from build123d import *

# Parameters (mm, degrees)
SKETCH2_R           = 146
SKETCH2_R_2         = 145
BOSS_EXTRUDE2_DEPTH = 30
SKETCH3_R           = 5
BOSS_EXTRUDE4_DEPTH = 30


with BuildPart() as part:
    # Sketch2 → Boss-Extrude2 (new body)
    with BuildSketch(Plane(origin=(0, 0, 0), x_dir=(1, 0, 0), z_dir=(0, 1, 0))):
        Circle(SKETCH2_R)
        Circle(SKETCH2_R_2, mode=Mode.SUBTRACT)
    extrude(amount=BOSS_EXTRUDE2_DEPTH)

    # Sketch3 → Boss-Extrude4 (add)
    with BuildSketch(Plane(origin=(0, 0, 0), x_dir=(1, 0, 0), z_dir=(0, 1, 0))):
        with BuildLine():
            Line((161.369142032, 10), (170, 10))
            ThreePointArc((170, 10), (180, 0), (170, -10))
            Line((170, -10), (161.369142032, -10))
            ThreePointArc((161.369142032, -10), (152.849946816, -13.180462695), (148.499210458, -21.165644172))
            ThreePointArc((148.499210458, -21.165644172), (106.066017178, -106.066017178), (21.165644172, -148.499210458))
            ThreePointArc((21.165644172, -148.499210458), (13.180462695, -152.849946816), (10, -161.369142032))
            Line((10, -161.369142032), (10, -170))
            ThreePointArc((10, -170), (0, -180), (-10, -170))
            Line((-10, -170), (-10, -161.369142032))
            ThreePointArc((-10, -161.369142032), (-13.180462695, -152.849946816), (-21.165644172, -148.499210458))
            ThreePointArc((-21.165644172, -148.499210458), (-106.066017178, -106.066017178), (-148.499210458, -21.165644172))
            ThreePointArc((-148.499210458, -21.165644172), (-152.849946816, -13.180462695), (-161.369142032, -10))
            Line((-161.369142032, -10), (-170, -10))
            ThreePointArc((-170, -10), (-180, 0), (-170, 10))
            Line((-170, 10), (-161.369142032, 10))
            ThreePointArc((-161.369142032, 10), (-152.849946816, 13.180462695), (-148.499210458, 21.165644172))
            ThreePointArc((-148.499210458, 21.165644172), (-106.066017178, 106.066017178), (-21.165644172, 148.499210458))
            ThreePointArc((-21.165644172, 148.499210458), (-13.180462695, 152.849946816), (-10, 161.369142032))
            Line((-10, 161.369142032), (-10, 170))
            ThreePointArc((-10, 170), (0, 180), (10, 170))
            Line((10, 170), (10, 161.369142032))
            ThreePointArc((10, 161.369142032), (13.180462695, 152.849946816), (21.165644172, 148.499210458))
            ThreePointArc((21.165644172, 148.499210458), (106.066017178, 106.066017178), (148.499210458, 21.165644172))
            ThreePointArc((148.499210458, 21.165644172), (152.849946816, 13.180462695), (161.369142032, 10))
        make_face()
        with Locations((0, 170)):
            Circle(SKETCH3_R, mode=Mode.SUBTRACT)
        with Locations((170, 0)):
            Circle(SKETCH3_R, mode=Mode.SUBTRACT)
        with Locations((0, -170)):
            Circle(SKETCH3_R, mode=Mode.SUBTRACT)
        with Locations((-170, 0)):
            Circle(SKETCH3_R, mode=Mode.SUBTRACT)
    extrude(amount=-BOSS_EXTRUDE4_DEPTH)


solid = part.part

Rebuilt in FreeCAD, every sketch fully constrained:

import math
import FreeCAD as App
import Part
import Sketcher

doc = App.newDocument("Part")
params = doc.addObject("Spreadsheet::Sheet", "Params")
for row, (alias, value) in enumerate([
    ("sketch1_diameter", "292 mm"),
    ("sketch1_diameter2", "290 mm"),
    ("pad1_length", "30 mm"),
    ("sketch2_diameter", "10 mm"),
    ("sketch2_radius", "13 mm"),
    ("sketch2_radius2", "150 mm"),
    ("sketch2_radius3", "10 mm"),
    ("pad2_length", "30 mm"),
], start=1):
    params.set(f"A{row}", alias)
    params.set(f"B{row}", "=" + value)
    params.setAlias(f"B{row}", alias)

body = doc.addObject("PartDesign::Body", "Body")

sketch1 = body.newObject("Sketcher::SketchObject", "Sketch")
sketch1.AttachmentSupport = (doc.getObject("XZ_Plane"), [""])
sketch1.MapMode = "FlatFace"
sketch1.addGeometry([
    Part.Circle(App.Vector(0, 0, 0), App.Vector(0, 0, 1), 146),
    Part.Circle(App.Vector(0, 0, 0), App.Vector(0, 0, 1), 145),
], False)
sketch1.addConstraint([
    Sketcher.Constraint("Coincident", 0, 3, -1, 1),
    Sketcher.Constraint("Coincident", 1, 3, -1, 1),
    Sketcher.Constraint("Diameter", 0, 292.0),
    Sketcher.Constraint("Diameter", 1, 290.0),
])
sketch1.setExpression("Constraints[2]", "Params.sketch1_diameter")
sketch1.setExpression("Constraints[3]", "Params.sketch1_diameter2")
pad1 = body.newObject("PartDesign::Pad", "Pad")
pad1.Profile = sketch1
pad1.setExpression("Length", "Params.pad1_length")
pad1.Reversed = True

sketch2 = body.newObject("Sketcher::SketchObject", "Sketch001")
sketch2.AttachmentSupport = (doc.getObject("XZ_Plane"), [""])
sketch2.MapMode = "FlatFace"
sketch2.addGeometry([
    Part.LineSegment(App.Vector(170, -10, 0), App.Vector(161, -10, 0)),
    Part.ArcOfCircle(Part.Circle(App.Vector(161, -23, 0), App.Vector(0, 0, 1), 13), math.radians(90), math.radians(172)),
    Part.ArcOfCircle(Part.Circle(App.Vector(0, 0, 0), App.Vector(0, 0, 1), 150), math.radians(-82), math.radians(-8)),
    Part.ArcOfCircle(Part.Circle(App.Vector(23, -161, 0), App.Vector(0, 0, 1), 13), math.radians(98), math.radians(180)),
    Part.LineSegment(App.Vector(10, -161, 0), App.Vector(10, -170, 0)),
    Part.ArcOfCircle(Part.Circle(App.Vector(0, -170, 0), App.Vector(0, 0, 1), 10), math.radians(180), math.radians(360)),
    Part.LineSegment(App.Vector(-10, -170, 0), App.Vector(-10, -161, 0)),
    Part.ArcOfCircle(Part.Circle(App.Vector(-23, -161, 0), App.Vector(0, 0, 1), 13), math.radians(0), math.radians(82)),
    Part.ArcOfCircle(Part.Circle(App.Vector(0, 0, 0), App.Vector(0, 0, 1), 150), math.radians(-172), math.radians(-98)),
    Part.ArcOfCircle(Part.Circle(App.Vector(-161, -23, 0), App.Vector(0, 0, 1), 13), math.radians(8), math.radians(90)),
    Part.LineSegment(App.Vector(-161, -10, 0), App.Vector(-170, -10, 0)),
    Part.ArcOfCircle(Part.Circle(App.Vector(-170, 0, 0), App.Vector(0, 0, 1), 10), math.radians(90), math.radians(270)),
    Part.LineSegment(App.Vector(-170, 10, 0), App.Vector(-161, 10, 0)),
    Part.ArcOfCircle(Part.Circle(App.Vector(-161, 23, 0), App.Vector(0, 0, 1), 13), math.radians(-90), math.radians(-8)),
    Part.ArcOfCircle(Part.Circle(App.Vector(0, 0, 0), App.Vector(0, 0, 1), 150), math.radians(98), math.radians(172)),
    Part.ArcOfCircle(Part.Circle(App.Vector(-23, 161, 0), App.Vector(0, 0, 1), 13), math.radians(-82), math.radians(0)),
    Part.LineSegment(App.Vector(-10, 161, 0), App.Vector(-10, 170, 0)),
    Part.ArcOfCircle(Part.Circle(App.Vector(0, 170, 0), App.Vector(0, 0, 1), 10), math.radians(0), math.radians(180)),
    Part.LineSegment(App.Vector(10, 170, 0), App.Vector(10, 161, 0)),
    Part.ArcOfCircle(Part.Circle(App.Vector(23, 161, 0), App.Vector(0, 0, 1), 13), math.radians(180), math.radians(262)),
    Part.ArcOfCircle(Part.Circle(App.Vector(0, 0, 0), App.Vector(0, 0, 1), 150), math.radians(8), math.radians(82)),
    Part.ArcOfCircle(Part.Circle(App.Vector(161, 23, 0), App.Vector(0, 0, 1), 13), math.radians(-172), math.radians(-90)),
    Part.LineSegment(App.Vector(161, 10, 0), App.Vector(170, 10, 0)),
    Part.ArcOfCircle(Part.Circle(App.Vector(170, 0, 0), App.Vector(0, 0, 1), 10), math.radians(-90), math.radians(90)),
    Part.Circle(App.Vector(0, 170, 0), App.Vector(0, 0, 1), 5),
    Part.Circle(App.Vector(170, 0, 0), App.Vector(0, 0, 1), 5),
    Part.Circle(App.Vector(-170, 0, 0), App.Vector(0, 0, 1), 5),
    Part.Circle(App.Vector(0, -170, 0), App.Vector(0, 0, 1), 5),
], False)
sketch2.addConstraint([
    Sketcher.Constraint("Tangent", 0, 2, 1, 1),
    Sketcher.Constraint("Tangent", 1, 2, 2, 2),
    Sketcher.Constraint("Tangent", 2, 1, 3, 1),
    Sketcher.Constraint("Tangent", 3, 2, 4, 1),
    Sketcher.Constraint("Tangent", 4, 2, 5, 2),
    Sketcher.Constraint("Tangent", 5, 1, 6, 1),
    Sketcher.Constraint("Tangent", 6, 2, 7, 1),
    Sketcher.Constraint("Tangent", 7, 2, 8, 2),
    Sketcher.Constraint("Tangent", 8, 1, 9, 1),
    Sketcher.Constraint("Tangent", 9, 2, 10, 1),
    Sketcher.Constraint("Tangent", 10, 2, 11, 2),
    Sketcher.Constraint("Tangent", 11, 1, 12, 1),
    Sketcher.Constraint("Tangent", 12, 2, 13, 1),
    Sketcher.Constraint("Tangent", 13, 2, 14, 2),
    Sketcher.Constraint("Tangent", 14, 1, 15, 1),
    Sketcher.Constraint("Tangent", 15, 2, 16, 1),
    Sketcher.Constraint("Tangent", 16, 2, 17, 2),
    Sketcher.Constraint("Tangent", 17, 1, 18, 1),
    Sketcher.Constraint("Tangent", 18, 2, 19, 1),
    Sketcher.Constraint("Tangent", 19, 2, 20, 2),
    Sketcher.Constraint("Tangent", 20, 1, 21, 1),
    Sketcher.Constraint("Tangent", 21, 2, 22, 1),
    Sketcher.Constraint("Tangent", 22, 2, 23, 2),
    Sketcher.Constraint("Tangent", 23, 1, 0, 1),
    Sketcher.Constraint("Horizontal", 0),
    Sketcher.Constraint("Vertical", 4),
    Sketcher.Constraint("Vertical", 6),
    Sketcher.Constraint("Horizontal", 10),
    Sketcher.Constraint("Horizontal", 12),
    Sketcher.Constraint("Vertical", 16),
    Sketcher.Constraint("Vertical", 18),
    Sketcher.Constraint("Horizontal", 22),
    Sketcher.Constraint("Coincident", 2, 3, -1, 1),
    Sketcher.Constraint("Coincident", 8, 3, -1, 1),
    Sketcher.Constraint("Coincident", 14, 3, -1, 1),
    Sketcher.Constraint("Coincident", 20, 3, -1, 1),
    Sketcher.Constraint("Coincident", 24, 3, 17, 3),
    Sketcher.Constraint("Coincident", 25, 3, 23, 3),
    Sketcher.Constraint("Coincident", 26, 3, 11, 3),
    Sketcher.Constraint("Coincident", 27, 3, 5, 3),
    Sketcher.Constraint("Equal", 1, 3),
    Sketcher.Constraint("Equal", 3, 7),
    Sketcher.Constraint("Equal", 2, 8),
    Sketcher.Constraint("Equal", 7, 9),
    Sketcher.Constraint("Equal", 5, 11),
    Sketcher.Constraint("Equal", 9, 13),
    Sketcher.Constraint("Equal", 8, 14),
    Sketcher.Constraint("Equal", 13, 15),
    Sketcher.Constraint("Equal", 11, 17),
    Sketcher.Constraint("Equal", 15, 19),
    Sketcher.Constraint("Equal", 14, 20),
    Sketcher.Constraint("Equal", 19, 21),
    Sketcher.Constraint("Equal", 17, 23),
    Sketcher.Constraint("Equal", 24, 25),
    Sketcher.Constraint("Equal", 25, 26),
    Sketcher.Constraint("Equal", 26, 27),
    Sketcher.Constraint("Symmetric", 5, 3, 17, 3, -1, 1),
    Sketcher.Constraint("Symmetric", 11, 3, 23, 3, -1, 1),
    Sketcher.Constraint("PointOnObject", 5, 3, -2),
    Sketcher.Constraint("PointOnObject", 11, 3, -1),
    Sketcher.Constraint("Equal", 22, 4),
    Sketcher.Constraint("Diameter", 24, 10.0),
    Sketcher.Constraint("Radius", 1, 13.0),
    Sketcher.Constraint("Radius", 2, 150.0),
    Sketcher.Constraint("Radius", 5, 10.0),
    Sketcher.Constraint("DistanceY", 5, 3, -1, 1, 170.0),
])
sketch2.setExpression("Constraints[61]", "Params.sketch2_diameter")
sketch2.setExpression("Constraints[62]", "Params.sketch2_radius")
sketch2.setExpression("Constraints[63]", "Params.sketch2_radius2")
sketch2.setExpression("Constraints[64]", "Params.sketch2_radius3")
pad2 = body.newObject("PartDesign::Pad", "Pad001")
pad2.Profile = sketch2
pad2.setExpression("Length", "Params.pad2_length")

doc.recompute()
